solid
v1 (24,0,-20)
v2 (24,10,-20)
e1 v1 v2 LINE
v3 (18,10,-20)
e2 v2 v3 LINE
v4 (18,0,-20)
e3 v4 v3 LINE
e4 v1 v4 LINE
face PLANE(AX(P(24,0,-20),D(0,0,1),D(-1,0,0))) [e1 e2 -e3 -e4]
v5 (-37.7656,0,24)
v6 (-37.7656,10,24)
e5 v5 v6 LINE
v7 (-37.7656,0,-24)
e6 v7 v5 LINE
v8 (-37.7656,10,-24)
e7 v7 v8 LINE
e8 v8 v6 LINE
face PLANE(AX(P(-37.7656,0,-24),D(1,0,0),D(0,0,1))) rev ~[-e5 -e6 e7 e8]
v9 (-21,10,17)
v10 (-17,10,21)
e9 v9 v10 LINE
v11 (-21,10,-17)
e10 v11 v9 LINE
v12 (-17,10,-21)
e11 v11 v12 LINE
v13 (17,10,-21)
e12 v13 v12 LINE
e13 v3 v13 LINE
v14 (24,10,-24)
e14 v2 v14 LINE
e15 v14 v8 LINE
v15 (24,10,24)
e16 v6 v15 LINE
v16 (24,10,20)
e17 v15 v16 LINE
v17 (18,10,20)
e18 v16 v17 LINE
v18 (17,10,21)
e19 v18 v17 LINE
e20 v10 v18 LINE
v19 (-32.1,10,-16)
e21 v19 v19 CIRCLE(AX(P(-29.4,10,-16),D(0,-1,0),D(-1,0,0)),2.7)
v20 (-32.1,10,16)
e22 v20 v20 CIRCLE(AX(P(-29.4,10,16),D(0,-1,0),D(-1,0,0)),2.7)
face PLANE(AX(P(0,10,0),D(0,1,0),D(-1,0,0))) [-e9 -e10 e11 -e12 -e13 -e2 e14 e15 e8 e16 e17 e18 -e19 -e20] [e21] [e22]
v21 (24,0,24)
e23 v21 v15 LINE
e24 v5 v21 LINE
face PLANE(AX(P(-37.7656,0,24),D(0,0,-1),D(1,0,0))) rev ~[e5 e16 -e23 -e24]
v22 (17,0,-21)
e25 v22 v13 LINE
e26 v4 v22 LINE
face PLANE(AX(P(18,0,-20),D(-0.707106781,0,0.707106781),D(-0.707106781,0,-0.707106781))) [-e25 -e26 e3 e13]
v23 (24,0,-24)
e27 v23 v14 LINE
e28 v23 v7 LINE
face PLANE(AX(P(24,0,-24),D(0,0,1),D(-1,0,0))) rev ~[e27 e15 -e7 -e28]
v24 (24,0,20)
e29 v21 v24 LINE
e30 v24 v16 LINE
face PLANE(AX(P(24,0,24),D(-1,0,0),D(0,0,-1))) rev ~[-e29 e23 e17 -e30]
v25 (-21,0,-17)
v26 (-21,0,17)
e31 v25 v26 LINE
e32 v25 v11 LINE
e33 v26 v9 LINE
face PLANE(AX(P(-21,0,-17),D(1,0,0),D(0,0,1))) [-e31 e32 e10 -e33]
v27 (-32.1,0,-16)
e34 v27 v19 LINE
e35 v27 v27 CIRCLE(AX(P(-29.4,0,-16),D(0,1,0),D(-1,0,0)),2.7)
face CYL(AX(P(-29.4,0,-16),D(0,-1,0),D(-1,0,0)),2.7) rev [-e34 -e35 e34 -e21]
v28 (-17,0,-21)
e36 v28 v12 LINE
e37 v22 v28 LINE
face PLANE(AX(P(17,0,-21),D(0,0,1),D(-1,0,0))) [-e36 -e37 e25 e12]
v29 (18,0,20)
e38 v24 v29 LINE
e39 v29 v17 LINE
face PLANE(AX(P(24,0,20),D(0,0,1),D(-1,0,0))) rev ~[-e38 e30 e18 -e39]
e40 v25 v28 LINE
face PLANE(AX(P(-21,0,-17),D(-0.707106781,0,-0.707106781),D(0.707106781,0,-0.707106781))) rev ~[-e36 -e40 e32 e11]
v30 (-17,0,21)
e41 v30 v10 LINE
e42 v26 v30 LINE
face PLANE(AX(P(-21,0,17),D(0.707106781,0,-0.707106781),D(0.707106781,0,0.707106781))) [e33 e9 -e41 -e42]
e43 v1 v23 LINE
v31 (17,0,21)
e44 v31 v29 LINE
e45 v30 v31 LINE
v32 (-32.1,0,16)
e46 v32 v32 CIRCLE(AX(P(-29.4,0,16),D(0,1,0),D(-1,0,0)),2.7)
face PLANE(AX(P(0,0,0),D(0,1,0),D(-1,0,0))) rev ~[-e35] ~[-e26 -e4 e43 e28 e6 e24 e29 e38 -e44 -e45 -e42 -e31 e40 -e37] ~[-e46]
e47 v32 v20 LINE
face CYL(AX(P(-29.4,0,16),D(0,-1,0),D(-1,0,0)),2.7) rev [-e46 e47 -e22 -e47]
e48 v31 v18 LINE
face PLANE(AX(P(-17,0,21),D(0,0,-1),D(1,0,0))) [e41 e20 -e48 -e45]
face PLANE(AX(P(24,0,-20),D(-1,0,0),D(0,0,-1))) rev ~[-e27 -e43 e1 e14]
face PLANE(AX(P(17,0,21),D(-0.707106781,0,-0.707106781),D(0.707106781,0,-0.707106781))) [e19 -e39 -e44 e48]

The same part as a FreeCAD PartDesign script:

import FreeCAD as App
import Part
import Sketcher


def add_polygon(sketch, points):
    """Adds a closed chain of lines whose ends are joined by coincident constraints."""
    first, n = sketch.GeometryCount, len(points)
    for a, b in zip(points, points[1:] + points[:1]):
        sketch.addGeometry(Part.LineSegment(App.Vector(*a, 0), App.Vector(*b, 0)), False)
    for i in range(n):
        sketch.addConstraint(Sketcher.Constraint("Coincident", first + i, 2, first + (i + 1) % n, 1))

doc = App.newDocument("Part")
params = doc.addObject("Spreadsheet::Sheet", "Params")
for row, (alias, value) in enumerate([
    ("sketch1_width", "34 mm"),
    ("sketch1_width2", "6 mm"),
    ("sketch1_height", "4 mm"),
    ("pad1_length", "10 mm"),
    ("sketch2_diameter", "5.4 mm"),
], start=1):
    params.set(f"A{row}", alias)
    params.set(f"B{row}", "=" + value)
    params.setAlias(f"B{row}", alias)

body = doc.addObject("PartDesign::Body", "Body")

sketch1 = body.newObject("Sketcher::SketchObject", "Sketch")
sketch1.AttachmentSupport = (doc.getObject("XZ_Plane"), [""])
sketch1.MapMode = "FlatFace"
add_polygon(sketch1, [(-21, 17), (-21, -17), (-17, -21), (17, -21), (18, -20), (24, -20), (24, -24), (-37.7656, -24), (-37.7656, 24), (24, 24), (24, 20), (18, 20), (17, 21), (-17, 21)])
sketch1.addConstraint([
    Sketcher.Constraint("Vertical", 0),
    Sketcher.Constraint("Horizontal", 2),
    Sketcher.Constraint("Horizontal", 4),
    Sketcher.Constraint("Vertical", 5),
    Sketcher.Constraint("Horizontal", 6),
    Sketcher.Constraint("Vertical", 7),
    Sketcher.Constraint("Horizontal", 8),
    Sketcher.Constraint("Vertical", 9),
    Sketcher.Constraint("Horizontal", 10),
    Sketcher.Constraint("Horizontal", 12),
    Sketcher.Constraint("Symmetric", 1, 2, 11, 2, -1, 1),
    Sketcher.Constraint("Symmetric", 5, 2, 8, 2, -1),
    Sketcher.Constraint("Symmetric", 3, 2, 10, 2, -1),
    Sketcher.Constraint("Perpendicular", 1, 3),
    Sketcher.Constraint("Perpendicular", 3, 11),
    Sketcher.Constraint("Perpendicular", 11, 13),
    Sketcher.Constraint("Vertical", 2, 2, 11, 2),
    Sketcher.Constraint("Vertical", 1, 2, 12, 2),
    Sketcher.Constraint("Equal", 12, 0),
    Sketcher.Constraint("DistanceX", 2, 1, 2, 2, 34.0),
    Sketcher.Constraint("DistanceY", 3, 2, 0, 2, 3.0),
    Sketcher.Constraint("DistanceY", 5, 2, 2, 2, 3.0),
    Sketcher.Constraint("DistanceX", 4, 1, 4, 2, 6.0),
    Sketcher.Constraint("DistanceY", 5, 2, 5, 1, 4.0),
    Sketcher.Constraint("DistanceX", 6, 2, 6, 1, 61.7656),
])
sketch1.setExpression("Constraints[33]", "Params.sketch1_width")
sketch1.setExpression("Constraints[36]", "Params.sketch1_width2")
sketch1.setExpression("Constraints[37]", "Params.sketch1_height")
pad1 = body.newObject("PartDesign::Pad", "Pad")
pad1.Profile = sketch1
pad1.setExpression("Length", "Params.pad1_length")
pad1.Reversed = True

sketch2 = body.newObject("Sketcher::SketchObject", "Sketch001")
sketch2.AttachmentSupport = (doc.getObject("XZ_Plane"), [""])
sketch2.MapMode = "FlatFace"
sketch2.addGeometry([
    Part.Circle(App.Vector(-29.4, -16, 0), App.Vector(0, 0, 1), 2.7),
    Part.Circle(App.Vector(-29.4, 16, 0), App.Vector(0, 0, 1), 2.7),
], False)
sketch2.addConstraint([
    Sketcher.Constraint("Equal", 0, 1),
    Sketcher.Constraint("Symmetric", 0, 3, 1, 3, -1),
    Sketcher.Constraint("Diameter", 0, 5.4),
    Sketcher.Constraint("DistanceY", 0, 3, 1, 3, 32.0),
    Sketcher.Constraint("DistanceX", 0, 3, -1, 1, 29.4),
])
sketch2.setExpression("Constraints[2]", "Params.sketch2_diameter")
pocket1 = body.newObject("PartDesign::Pocket", "Pocket")
pocket1.Profile = sketch2
pocket1.Type = "ThroughAll"

doc.recompute()
